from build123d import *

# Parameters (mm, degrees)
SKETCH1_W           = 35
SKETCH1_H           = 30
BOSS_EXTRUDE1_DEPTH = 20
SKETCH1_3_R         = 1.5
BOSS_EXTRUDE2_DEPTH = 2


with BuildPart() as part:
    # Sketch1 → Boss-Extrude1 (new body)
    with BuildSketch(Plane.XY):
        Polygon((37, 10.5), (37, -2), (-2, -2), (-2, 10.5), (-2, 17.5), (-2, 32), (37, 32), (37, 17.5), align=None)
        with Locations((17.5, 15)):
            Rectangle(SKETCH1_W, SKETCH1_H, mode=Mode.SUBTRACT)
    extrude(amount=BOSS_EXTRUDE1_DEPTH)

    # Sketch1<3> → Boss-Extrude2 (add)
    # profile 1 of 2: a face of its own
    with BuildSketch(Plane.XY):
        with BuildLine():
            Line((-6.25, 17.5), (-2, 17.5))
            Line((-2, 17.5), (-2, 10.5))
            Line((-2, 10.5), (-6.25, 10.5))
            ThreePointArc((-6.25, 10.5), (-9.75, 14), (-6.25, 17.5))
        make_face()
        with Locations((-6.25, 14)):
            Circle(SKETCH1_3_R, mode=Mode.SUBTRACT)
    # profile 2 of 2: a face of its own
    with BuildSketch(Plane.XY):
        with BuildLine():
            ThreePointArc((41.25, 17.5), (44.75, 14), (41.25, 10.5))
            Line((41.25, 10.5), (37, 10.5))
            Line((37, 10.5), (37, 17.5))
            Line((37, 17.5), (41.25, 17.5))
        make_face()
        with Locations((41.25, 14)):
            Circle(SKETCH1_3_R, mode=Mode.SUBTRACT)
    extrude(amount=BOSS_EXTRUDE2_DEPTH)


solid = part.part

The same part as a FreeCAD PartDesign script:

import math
import FreeCAD as App
import Part
import Sketcher
Q = App.Units.Quantity

doc = App.newDocument("Part")
body = doc.addObject("PartDesign::Body", "Body")

sketch1 = body.newObject("Sketcher::SketchObject", "Sketch")
sketch1.AttachmentSupport = (doc.getObject("XY_Plane"), [""])
sketch1.MapMode = "FlatFace"
sketch1.addGeometry([
    Part.LineSegment(App.Vector(37, -2, 0), App.Vector(37, 32, 0)),
    Part.LineSegment(App.Vector(37, 32, 0), App.Vector(-2, 32, 0)),
    Part.LineSegment(App.Vector(-2, 32, 0), App.Vector(-2, -2, 0)),
    Part.LineSegment(App.Vector(-2, -2, 0), App.Vector(37, -2, 0)),
    Part.LineSegment(App.Vector(0, 0, 0), App.Vector(0, 30, 0)),
    Part.LineSegment(App.Vector(0, 30, 0), App.Vector(35, 30, 0)),
    Part.LineSegment(App.Vector(35, 30, 0), App.Vector(35, 0, 0)),
    Part.LineSegment(App.Vector(35, 0, 0), App.Vector(0, 0, 0)),
], False)
sketch1.addConstraint([
    Sketcher.Constraint("Coincident", 0, 2, 1, 1),
    Sketcher.Constraint("Coincident", 1, 2, 2, 1),
    Sketcher.Constraint("Coincident", 2, 2, 3, 1),
    Sketcher.Constraint("Coincident", 3, 2, 0, 1),
    Sketcher.Constraint("Coincident", 4, 2, 5, 1),
    Sketcher.Constraint("Coincident", 5, 2, 6, 1),
    Sketcher.Constraint("Coincident", 6, 2, 7, 1),
    Sketcher.Constraint("Coincident", 7, 2, 4, 1),
    Sketcher.Constraint("Vertical", 0),
    Sketcher.Constraint("Horizontal", 1),
    Sketcher.Constraint("Vertical", 2),
    Sketcher.Constraint("Horizontal", 3),
    Sketcher.Constraint("Vertical", 4),
    Sketcher.Constraint("Horizontal", 5),
    Sketcher.Constraint("Vertical", 6),
    Sketcher.Constraint("Horizontal", 7),
    Sketcher.Constraint("Coincident", 7, 2, -1, 1),
    Sketcher.Constraint("DistanceX", 1, 2, 1, 1, Q("39 mm")),
    Sketcher.Constraint("DistanceX", 5, 1, 5, 2, Q("35 mm")),
    Sketcher.Constraint("DistanceY", 0, 1, 0, 2, Q("34 mm")),
    Sketcher.Constraint("DistanceY", 4, 1, 4, 2, Q("30 mm")),
    Sketcher.Constraint("DistanceX", -1, 1, 0, 2, Q("37 mm")),
    Sketcher.Constraint("DistanceY", -1, 1, 0, 2, Q("32 mm")),
])
pad1 = body.newObject("PartDesign::Pad", "Pad")
pad1.Profile = sketch1
pad1.Length = 20

sketch2 = body.newObject("Sketcher::SketchObject", "Sketch001")
sketch2.AttachmentSupport = (doc.getObject("XY_Plane"), [""])
sketch2.MapMode = "FlatFace"
sketch2.addGeometry([
    Part.LineSegment(App.Vector(-2, 17.5, 0), App.Vector(-6.2, 17.5, 0)),
    Part.ArcOfCircle(Part.Circle(App.Vector(-6.2, 14, 0), App.Vector(0, 0, 1), 3.5), math.radians(90), math.radians(270)),
    Part.LineSegment(App.Vector(-6.2, 10.5, 0), App.Vector(-2, 10.5, 0)),
    Part.LineSegment(App.Vector(-2, 10.5, 0), App.Vector(-2, 17.5, 0)),
    Part.Circle(App.Vector(-6.2, 14, 0), App.Vector(0, 0, 1), 1.5),
    Part.ArcOfCircle(Part.Circle(App.Vector(41.2, 14, 0), App.Vector(0, 0, 1), 3.5), math.radians(-90), math.radians(90)),
    Part.LineSegment(App.Vector(41.2, 17.5, 0), App.Vector(37, 17.5, 0)),
    Part.LineSegment(App.Vector(37, 17.5, 0), App.Vector(37, 10.5, 0)),
    Part.LineSegment(App.Vector(37, 10.5, 0), App.Vector(41.2, 10.5, 0)),
    Part.Circle(App.Vector(41.2, 14, 0), App.Vector(0, 0, 1), 1.5),
], False)
sketch2.addConstraint([
    Sketcher.Constraint("Tangent", 0, 2, 1, 1),
    Sketcher.Constraint("Tangent", 1, 2, 2, 1),
    Sketcher.Constraint("Coincident", 2, 2, 3, 1),
    Sketcher.Constraint("Coincident", 3, 2, 0, 1),
    Sketcher.Constraint("Tangent", 5, 2, 6, 1),
    Sketcher.Constraint("Coincident", 6, 2, 7, 1),
    Sketcher.Constraint("Coincident", 7, 2, 8, 1),
    Sketcher.Constraint("Tangent", 8, 2, 5, 1),
    Sketcher.Constraint("Horizontal", 0),
    Sketcher.Constraint("Horizontal", 2),
    Sketcher.Constraint("Vertical", 3),
    Sketcher.Constraint("Horizontal", 6),
    Sketcher.Constraint("Vertical", 7),
    Sketcher.Constraint("Horizontal", 8),
    Sketcher.Constraint("Coincident", 4, 3, 1, 3),
    Sketcher.Constraint("Coincident", 9, 3, 5, 3),
    Sketcher.Constraint("Equal", 1, 5),
    Sketcher.Constraint("Equal", 4, 9),
    Sketcher.Constraint("Horizontal", 4, 3, 5, 3),
    Sketcher.Constraint("Equal", 2, 6),
    Sketcher.Constraint("Diameter", 4, Q("3 mm")),
    Sketcher.Constraint("Radius", 1, Q("3.5 mm")),
    Sketcher.Constraint("DistanceY", -1, 1, 1, 3, Q("14 mm")),
    Sketcher.Constraint("DistanceX", 2, 2, -1, 1, Q("2 mm")),
    Sketcher.Constraint("DistanceX", -1, 1, 6, 2, Q("37 mm")),
    Sketcher.Constraint("DistanceX", 0, 2, 0, 1, Q("4.25 mm")),
])
pad2 = body.newObject("PartDesign::Pad", "Pad001")
pad2.Profile = sketch2
pad2.Length = 2

doc.recompute()
